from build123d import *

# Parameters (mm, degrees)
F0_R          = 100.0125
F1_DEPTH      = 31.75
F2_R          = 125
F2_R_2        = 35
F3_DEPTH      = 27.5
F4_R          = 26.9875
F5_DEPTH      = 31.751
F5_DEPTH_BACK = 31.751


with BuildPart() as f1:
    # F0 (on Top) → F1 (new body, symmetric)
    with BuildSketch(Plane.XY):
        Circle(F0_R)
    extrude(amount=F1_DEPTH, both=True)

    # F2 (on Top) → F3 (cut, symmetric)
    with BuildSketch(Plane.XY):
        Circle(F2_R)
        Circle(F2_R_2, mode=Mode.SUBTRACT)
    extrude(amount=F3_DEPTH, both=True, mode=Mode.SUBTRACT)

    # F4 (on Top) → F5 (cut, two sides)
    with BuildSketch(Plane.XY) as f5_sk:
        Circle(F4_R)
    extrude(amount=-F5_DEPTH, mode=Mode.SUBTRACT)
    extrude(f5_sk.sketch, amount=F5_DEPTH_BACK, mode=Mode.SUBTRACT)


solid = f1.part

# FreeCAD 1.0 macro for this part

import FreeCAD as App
import Part
import Sketcher
from FreeCAD import Vector
Q = App.Units.Quantity

doc = App.newDocument("Part")
body = doc.addObject("PartDesign::Body", "Body")

# Sketch on XY plane
sketch1 = doc.addObject("Sketcher::SketchObject", "Sketch")
body.addObject(sketch1)
sketch1.AttachmentSupport = (doc.XY_Plane, [""])
sketch1.MapMode = "FlatFace"
sketch1.addGeometry(Part.Circle(Vector(0, 0, 0), Vector(0, 0, 1), 100.0125), False)
sketch1.addConstraint([
    Sketcher.Constraint("Coincident", 0, 3, -1, 1),
    Sketcher.Constraint("Diameter", 0, Q("200.025 mm")),
])
pad1 = doc.addObject("PartDesign::Pad", "Pad")
body.addObject(pad1)
pad1.Profile = sketch1
pad1.Length = 63.5
pad1.Midplane = True

# Sketch on XY plane
sketch2 = doc.addObject("Sketcher::SketchObject", "Sketch001")
body.addObject(sketch2)
sketch2.AttachmentSupport = (doc.XY_Plane, [""])
sketch2.MapMode = "FlatFace"
sketch2.addGeometry([
    Part.Circle(Vector(0, 0, 0), Vector(0, 0, 1), 125),
    Part.Circle(Vector(0, 0, 0), Vector(0, 0, 1), 35),
], False)
sketch2.addConstraint([
    Sketcher.Constraint("Coincident", 0, 3, -1, 1),
    Sketcher.Constraint("Coincident", 1, 3, -1, 1),
    Sketcher.Constraint("Diameter", 0, Q("250 mm")),
    Sketcher.Constraint("Diameter", 1, Q("70 mm")),
])
pocket1 = doc.addObject("PartDesign::Pocket", "Pocket")
body.addObject(pocket1)
pocket1.Profile = sketch2
pocket1.Length = 55
pocket1.Midplane = True

# Sketch on XY plane
sketch3 = doc.addObject("Sketcher::SketchObject", "Sketch002")
body.addObject(sketch3)
sketch3.AttachmentSupport = (doc.XY_Plane, [""])
sketch3.MapMode = "FlatFace"
sketch3.addGeometry(Part.Circle(Vector(0, 0, 0), Vector(0, 0, 1), 26.9875), False)
sketch3.addConstraint([
    Sketcher.Constraint("Coincident", 0, 3, -1, 1),
    Sketcher.Constraint("Diameter", 0, Q("53.975 mm")),
])
pocket2 = doc.addObject("PartDesign::Pocket", "Pocket001")
body.addObject(pocket2)
pocket2.Profile = sketch3
pocket2.Type = "ThroughAll"
pocket2.Midplane = True

doc.recompute()
